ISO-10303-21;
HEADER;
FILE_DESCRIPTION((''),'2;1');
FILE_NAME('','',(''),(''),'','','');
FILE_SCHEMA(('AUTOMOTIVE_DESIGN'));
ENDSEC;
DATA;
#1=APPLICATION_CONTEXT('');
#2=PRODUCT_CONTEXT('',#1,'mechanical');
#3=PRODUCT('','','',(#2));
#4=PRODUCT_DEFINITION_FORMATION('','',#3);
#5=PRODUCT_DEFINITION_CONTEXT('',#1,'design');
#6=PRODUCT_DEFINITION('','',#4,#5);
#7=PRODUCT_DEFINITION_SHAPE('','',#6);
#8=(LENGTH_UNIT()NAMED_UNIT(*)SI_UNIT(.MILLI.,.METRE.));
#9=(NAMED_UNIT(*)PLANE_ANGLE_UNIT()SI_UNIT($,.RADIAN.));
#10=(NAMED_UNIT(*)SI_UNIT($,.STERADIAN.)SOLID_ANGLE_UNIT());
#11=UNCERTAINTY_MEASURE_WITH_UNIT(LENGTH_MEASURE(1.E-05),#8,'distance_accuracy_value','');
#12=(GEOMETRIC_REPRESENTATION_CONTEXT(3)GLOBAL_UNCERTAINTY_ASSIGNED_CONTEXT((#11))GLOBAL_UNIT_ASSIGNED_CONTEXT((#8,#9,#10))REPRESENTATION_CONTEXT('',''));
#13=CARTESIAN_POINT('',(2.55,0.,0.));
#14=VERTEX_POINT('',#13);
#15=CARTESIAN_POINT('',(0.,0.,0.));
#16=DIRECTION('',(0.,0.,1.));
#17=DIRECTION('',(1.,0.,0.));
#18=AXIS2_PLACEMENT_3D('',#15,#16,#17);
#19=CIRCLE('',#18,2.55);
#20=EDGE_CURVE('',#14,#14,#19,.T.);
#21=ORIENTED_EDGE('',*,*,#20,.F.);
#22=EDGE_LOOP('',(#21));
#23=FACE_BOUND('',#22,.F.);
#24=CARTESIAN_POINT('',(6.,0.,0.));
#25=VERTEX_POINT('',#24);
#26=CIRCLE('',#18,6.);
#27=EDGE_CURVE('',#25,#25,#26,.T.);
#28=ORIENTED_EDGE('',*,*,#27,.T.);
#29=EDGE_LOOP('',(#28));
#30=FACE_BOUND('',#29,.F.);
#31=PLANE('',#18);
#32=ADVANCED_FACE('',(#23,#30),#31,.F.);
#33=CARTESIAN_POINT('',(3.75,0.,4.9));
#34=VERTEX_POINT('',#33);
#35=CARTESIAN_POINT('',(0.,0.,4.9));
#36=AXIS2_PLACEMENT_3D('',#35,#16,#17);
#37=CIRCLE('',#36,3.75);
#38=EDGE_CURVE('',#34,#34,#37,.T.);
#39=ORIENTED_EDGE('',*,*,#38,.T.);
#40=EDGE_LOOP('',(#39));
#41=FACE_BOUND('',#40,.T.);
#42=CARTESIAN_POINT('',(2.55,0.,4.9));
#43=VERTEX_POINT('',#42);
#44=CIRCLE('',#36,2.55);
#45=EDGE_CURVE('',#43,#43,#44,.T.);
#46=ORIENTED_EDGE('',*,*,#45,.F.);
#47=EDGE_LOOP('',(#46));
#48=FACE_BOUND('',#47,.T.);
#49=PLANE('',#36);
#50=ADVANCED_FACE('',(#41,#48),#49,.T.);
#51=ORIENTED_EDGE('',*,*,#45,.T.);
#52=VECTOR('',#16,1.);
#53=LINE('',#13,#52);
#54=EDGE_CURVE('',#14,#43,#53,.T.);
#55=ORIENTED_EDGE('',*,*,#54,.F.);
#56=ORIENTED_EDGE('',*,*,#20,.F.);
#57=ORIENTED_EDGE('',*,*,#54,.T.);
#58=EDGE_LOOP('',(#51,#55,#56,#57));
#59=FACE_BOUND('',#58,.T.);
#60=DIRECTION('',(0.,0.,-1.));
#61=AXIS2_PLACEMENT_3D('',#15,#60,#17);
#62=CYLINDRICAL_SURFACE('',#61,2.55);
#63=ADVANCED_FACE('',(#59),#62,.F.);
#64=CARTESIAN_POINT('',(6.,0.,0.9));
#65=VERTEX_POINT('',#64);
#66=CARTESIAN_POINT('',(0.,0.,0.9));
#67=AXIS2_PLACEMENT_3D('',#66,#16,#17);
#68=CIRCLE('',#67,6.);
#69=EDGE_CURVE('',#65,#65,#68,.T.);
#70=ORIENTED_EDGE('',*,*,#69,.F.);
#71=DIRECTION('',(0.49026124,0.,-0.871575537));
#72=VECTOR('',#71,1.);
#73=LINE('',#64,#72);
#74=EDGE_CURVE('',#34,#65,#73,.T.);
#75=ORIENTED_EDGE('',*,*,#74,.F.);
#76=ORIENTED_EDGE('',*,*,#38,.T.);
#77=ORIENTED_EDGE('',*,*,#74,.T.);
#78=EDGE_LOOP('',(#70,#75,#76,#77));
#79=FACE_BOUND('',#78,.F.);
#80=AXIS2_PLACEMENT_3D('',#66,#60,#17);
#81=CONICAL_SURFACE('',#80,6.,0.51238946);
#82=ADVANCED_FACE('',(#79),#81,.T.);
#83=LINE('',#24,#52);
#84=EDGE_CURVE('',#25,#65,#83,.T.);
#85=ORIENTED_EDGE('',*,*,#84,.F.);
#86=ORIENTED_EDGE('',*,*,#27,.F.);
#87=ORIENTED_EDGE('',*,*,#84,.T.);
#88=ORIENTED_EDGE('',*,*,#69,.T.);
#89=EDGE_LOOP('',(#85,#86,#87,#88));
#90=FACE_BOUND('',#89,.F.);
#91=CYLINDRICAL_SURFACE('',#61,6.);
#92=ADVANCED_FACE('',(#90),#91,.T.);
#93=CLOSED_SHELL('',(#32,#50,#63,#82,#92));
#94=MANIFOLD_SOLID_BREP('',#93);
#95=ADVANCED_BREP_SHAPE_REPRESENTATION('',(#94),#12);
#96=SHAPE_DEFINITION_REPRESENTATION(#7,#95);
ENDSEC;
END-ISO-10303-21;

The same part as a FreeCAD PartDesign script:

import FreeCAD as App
import Part
import Sketcher

V = App.Vector
Q = App.Units.Quantity


def edges_at(feature, points):
    """Names of the edges that pass closest to the given points."""
    edges = feature.Shape.Edges
    near = lambda p: min(range(len(edges)), key=lambda i: edges[i].distToShape(Part.Vertex(*p))[0])
    return sorted({f"Edge{near(p) + 1}" for p in points})

doc = App.newDocument("Part")
body = doc.addObject("PartDesign::Body", "Body")

sketch1 = body.newObject("Sketcher::SketchObject", "Sketch")
sketch1.AttachmentSupport = (doc.getObject("XY_Plane"), [""])
sketch1.MapMode = "FlatFace"
sketch1.addGeometry(Part.Circle(V(0, 0, 0), V(0, 0, 1), 6), False)
sketch1.addGeometry(Part.Circle(V(0, 0, 0), V(0, 0, 1), 2.5), False)
sketch1.addConstraint(Sketcher.Constraint("Coincident", 0, 3, -1, 1))
sketch1.addConstraint(Sketcher.Constraint("Coincident", 1, 3, -1, 1))
sketch1.addConstraint(Sketcher.Constraint("Diameter", 0, Q("12 mm")))
sketch1.addConstraint(Sketcher.Constraint("Diameter", 1, Q("5.1 mm")))
pad1 = body.newObject("PartDesign::Pad", "Pad")
pad1.Profile = sketch1
pad1.Length = 4.9
doc.recompute()

chamfer = body.newObject("PartDesign::Chamfer", "Chamfer")
chamfer.Base = (pad1, edges_at(pad1, [(-6, 0, 4.9)]))
chamfer.ChamferType = "Two distances"
chamfer.Size = 2.25
chamfer.Size2 = 4
chamfer.FlipDirection = True

doc.recompute()
